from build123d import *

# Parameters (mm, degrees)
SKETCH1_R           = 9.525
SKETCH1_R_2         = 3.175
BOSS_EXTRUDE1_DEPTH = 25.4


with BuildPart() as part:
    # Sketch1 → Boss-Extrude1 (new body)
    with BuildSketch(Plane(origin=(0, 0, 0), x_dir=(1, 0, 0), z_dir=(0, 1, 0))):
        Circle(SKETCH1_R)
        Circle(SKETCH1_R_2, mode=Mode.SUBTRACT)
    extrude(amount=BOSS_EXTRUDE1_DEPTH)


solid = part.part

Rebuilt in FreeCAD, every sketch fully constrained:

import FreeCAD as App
import Part
import Sketcher

V = App.Vector
Q = App.Units.Quantity

doc = App.newDocument("Part")
params = doc.addObject("Spreadsheet::Sheet", "Params")
for row, (alias, value) in enumerate([
    ("sketch1_diameter", "0.75 in"),
    ("sketch1_diameter2", "0.25 in"),
    ("pad1_length", "1 in"),
], start=1):
    params.set(f"A{row}", alias)
    params.set(f"B{row}", "=" + value)
    params.setAlias(f"B{row}", alias)

body = doc.addObject("PartDesign::Body", "Body")

# Sketch on XZ plane
sketch1 = body.newObject("Sketcher::SketchObject", "Sketch")
sketch1.AttachmentSupport = (doc.getObject("XZ_Plane"), [""])
sketch1.MapMode = "FlatFace"
sketch1.addGeometry(Part.Circle(V(0, 0, 0), V(0, 0, 1), 9.5), False)
sketch1.addGeometry(Part.Circle(V(0, 0, 0), V(0, 0, 1), 3.2), False)
sketch1.addConstraint(Sketcher.Constraint("Coincident", 0, 3, -1, 1))
sketch1.addConstraint(Sketcher.Constraint("Coincident", 1, 3, -1, 1))
sketch1.addConstraint(Sketcher.Constraint("Diameter", 0, Q("0.75 in")))
sketch1.addConstraint(Sketcher.Constraint("Diameter", 1, Q("0.25 in")))
sketch1.setExpression("Constraints[2]", "Params.sketch1_diameter")
sketch1.setExpression("Constraints[3]", "Params.sketch1_diameter2")
pad1 = body.newObject("PartDesign::Pad", "Pad")
pad1.Profile = sketch1
pad1.setExpression("Length", "Params.pad1_length")
pad1.Reversed = True

doc.recompute()
